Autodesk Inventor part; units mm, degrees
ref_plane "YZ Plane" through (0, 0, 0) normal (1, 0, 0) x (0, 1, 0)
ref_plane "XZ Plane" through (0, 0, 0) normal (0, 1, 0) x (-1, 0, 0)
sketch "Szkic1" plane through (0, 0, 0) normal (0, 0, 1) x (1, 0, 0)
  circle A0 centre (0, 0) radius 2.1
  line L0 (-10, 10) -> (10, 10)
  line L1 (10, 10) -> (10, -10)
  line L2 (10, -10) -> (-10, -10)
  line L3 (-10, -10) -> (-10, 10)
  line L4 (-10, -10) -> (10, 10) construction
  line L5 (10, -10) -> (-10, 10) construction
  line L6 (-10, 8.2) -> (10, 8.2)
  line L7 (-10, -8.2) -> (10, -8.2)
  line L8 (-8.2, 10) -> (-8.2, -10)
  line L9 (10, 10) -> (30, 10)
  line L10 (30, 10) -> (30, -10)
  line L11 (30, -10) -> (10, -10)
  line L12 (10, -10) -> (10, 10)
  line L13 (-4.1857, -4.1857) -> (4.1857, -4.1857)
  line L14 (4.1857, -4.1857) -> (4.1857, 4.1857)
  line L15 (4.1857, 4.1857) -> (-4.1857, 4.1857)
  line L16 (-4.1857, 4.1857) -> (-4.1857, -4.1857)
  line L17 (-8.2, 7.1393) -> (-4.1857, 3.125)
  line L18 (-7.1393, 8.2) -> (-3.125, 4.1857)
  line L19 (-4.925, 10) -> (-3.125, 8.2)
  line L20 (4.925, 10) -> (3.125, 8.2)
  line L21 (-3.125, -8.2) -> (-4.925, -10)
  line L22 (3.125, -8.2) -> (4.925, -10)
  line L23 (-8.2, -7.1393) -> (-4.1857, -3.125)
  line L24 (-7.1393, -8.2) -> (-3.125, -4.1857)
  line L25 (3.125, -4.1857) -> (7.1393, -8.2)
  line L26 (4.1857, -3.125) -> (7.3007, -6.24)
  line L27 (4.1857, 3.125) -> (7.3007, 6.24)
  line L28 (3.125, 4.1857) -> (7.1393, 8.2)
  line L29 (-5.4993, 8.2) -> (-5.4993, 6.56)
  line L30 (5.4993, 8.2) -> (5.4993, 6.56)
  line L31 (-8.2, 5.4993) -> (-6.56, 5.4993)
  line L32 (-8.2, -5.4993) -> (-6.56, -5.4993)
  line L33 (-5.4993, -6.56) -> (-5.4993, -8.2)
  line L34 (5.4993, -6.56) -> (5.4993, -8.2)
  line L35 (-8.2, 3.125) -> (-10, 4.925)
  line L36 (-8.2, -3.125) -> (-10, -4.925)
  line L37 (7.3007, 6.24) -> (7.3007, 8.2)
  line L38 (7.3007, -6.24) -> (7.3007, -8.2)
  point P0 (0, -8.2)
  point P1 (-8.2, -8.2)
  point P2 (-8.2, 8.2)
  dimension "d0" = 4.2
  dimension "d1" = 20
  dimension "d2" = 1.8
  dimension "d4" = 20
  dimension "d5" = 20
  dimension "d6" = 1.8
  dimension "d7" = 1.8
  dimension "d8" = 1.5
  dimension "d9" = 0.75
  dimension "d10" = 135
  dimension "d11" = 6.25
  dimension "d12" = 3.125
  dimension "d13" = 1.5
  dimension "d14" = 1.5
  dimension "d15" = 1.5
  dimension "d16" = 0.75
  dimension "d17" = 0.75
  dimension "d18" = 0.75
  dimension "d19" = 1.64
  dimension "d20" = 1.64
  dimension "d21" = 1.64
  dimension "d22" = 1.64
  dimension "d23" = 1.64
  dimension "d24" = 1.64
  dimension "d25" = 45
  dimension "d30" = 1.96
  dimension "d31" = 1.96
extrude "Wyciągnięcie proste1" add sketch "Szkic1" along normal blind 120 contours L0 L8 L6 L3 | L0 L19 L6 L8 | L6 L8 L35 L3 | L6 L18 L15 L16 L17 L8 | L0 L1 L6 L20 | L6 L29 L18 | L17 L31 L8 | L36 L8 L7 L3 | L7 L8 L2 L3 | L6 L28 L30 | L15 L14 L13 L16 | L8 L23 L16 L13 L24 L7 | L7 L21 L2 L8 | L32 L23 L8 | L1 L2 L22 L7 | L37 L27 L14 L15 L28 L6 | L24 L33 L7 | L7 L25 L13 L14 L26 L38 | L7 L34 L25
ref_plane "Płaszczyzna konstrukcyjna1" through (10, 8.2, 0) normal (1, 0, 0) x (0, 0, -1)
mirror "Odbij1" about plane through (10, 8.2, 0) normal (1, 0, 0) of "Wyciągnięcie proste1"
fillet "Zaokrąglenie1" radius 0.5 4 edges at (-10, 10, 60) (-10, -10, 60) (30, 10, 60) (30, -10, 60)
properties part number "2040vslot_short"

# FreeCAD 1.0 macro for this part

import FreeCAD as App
import Part
import Sketcher

V = App.Vector
Q = App.Units.Quantity


def edges_at(feature, points):
    """Names of the edges that pass closest to the given points."""
    edges = feature.Shape.Edges
    near = lambda p: min(range(len(edges)), key=lambda i: edges[i].distToShape(Part.Vertex(*p))[0])
    return sorted({f"Edge{near(p) + 1}" for p in points})


def add_polygon(sketch, points):
    """Adds a closed chain of lines whose ends are joined by coincident constraints."""
    first, n = sketch.GeometryCount, len(points)
    for a, b in zip(points, points[1:] + points[:1]):
        sketch.addGeometry(Part.LineSegment(App.Vector(*a, 0), App.Vector(*b, 0)), False)
    for i in range(n):
        sketch.addConstraint(Sketcher.Constraint("Coincident", first + i, 2, first + (i + 1) % n, 1))

doc = App.newDocument("Part")
body = doc.addObject("PartDesign::Body", "Body")

# Sketch on XY plane
sketch1 = doc.addObject("Sketcher::SketchObject", "Sketch")
body.addObject(sketch1)
sketch1.AttachmentSupport = (doc.XY_Plane, [""])
sketch1.MapMode = "FlatFace"
add_polygon(sketch1, [(-10, 10), (-10, 4.925), (-8.2, 3.125), (-8.2, 5.4993), (-6.56, 5.4993), (-4.1857, 3.125), (-4.1857, -3.125), (-6.56, -5.4993), (-8.2, -5.4993), (-8.2, -3.125), (-10, -4.925), (-10, -10), (-4.925, -10), (-3.125, -8.2), (-5.4993, -8.2), (-5.4993, -6.56), (-3.125, -4.1857), (3.125, -4.1857), (5.4993, -6.56), (5.4993, -8.2), (3.125, -8.2), (4.925, -10), (10, -10), (10, -8.2), (7.3007, -8.2), (7.3007, -6.24), (4.1857, -3.125), (4.1857, 3.125), (7.3007, 6.24), (7.3007, 8.2), (10, 8.2), (10, 10), (4.925, 10), (3.125, 8.2), (5.4993, 8.2), (5.4993, 6.56), (3.125, 4.1857), (-3.125, 4.1857), (-5.4993, 6.56), (-5.4993, 8.2), (-3.125, 8.2), (-4.925, 10)])  # lines 0-41
sketch1.addGeometry(Part.Circle(V(0, 0, 0), V(0, 0, 1), 2.1), False)  # 42
sketch1.addConstraint([
    Sketcher.Constraint("Vertical", 0),
    Sketcher.Constraint("Vertical", 2),
    Sketcher.Constraint("Horizontal", 3),
    Sketcher.Constraint("Vertical", 5),
    Sketcher.Constraint("Horizontal", 7),
    Sketcher.Constraint("Vertical", 8),
    Sketcher.Constraint("Vertical", 10),
    Sketcher.Constraint("Horizontal", 11),
    Sketcher.Constraint("Horizontal", 13),
    Sketcher.Constraint("Vertical", 14),
    Sketcher.Constraint("Horizontal", 16),
    Sketcher.Constraint("Vertical", 18),
    Sketcher.Constraint("Horizontal", 19),
    Sketcher.Constraint("Horizontal", 21),
    Sketcher.Constraint("Vertical", 22),
    Sketcher.Constraint("Horizontal", 23),
    Sketcher.Constraint("Vertical", 24),
    Sketcher.Constraint("Vertical", 26),
    Sketcher.Constraint("Vertical", 28),
    Sketcher.Constraint("Horizontal", 29),
    Sketcher.Constraint("Vertical", 30),
    Sketcher.Constraint("Horizontal", 31),
    Sketcher.Constraint("Horizontal", 33),
    Sketcher.Constraint("Vertical", 34),
    Sketcher.Constraint("Horizontal", 36),
    Sketcher.Constraint("Vertical", 38),
    Sketcher.Constraint("Horizontal", 39),
    Sketcher.Constraint("Horizontal", 41),
    Sketcher.Constraint("Coincident", 42, 3, -1, 1),
    Sketcher.Constraint("Symmetric", 4, 2, 25, 2, -1, 1),
    Sketcher.Constraint("Symmetric", 10, 2, 30, 2, -1, 1),
    Sketcher.Constraint("Symmetric", 12, 2, 32, 2, -1, 1),
    Sketcher.Constraint("Symmetric", 14, 2, 34, 2, -1, 1),
    Sketcher.Constraint("Symmetric", 15, 2, 35, 2, -1, 1),
    Sketcher.Constraint("Symmetric", 17, 2, 37, 2, -1, 1),
    Sketcher.Constraint("Symmetric", 19, 2, 39, 2, -1, 1),
    Sketcher.Constraint("Symmetric", 20, 2, 40, 2, -1, 1),
    Sketcher.Constraint("Symmetric", 14, 2, 17, 2, -2),
    Sketcher.Constraint("Symmetric", 12, 2, 19, 2, -2),
    Sketcher.Constraint("Symmetric", 11, 2, 20, 2, -2),
    Sketcher.Constraint("Symmetric", 3, 2, 6, 2, -1),
    Sketcher.Constraint("Symmetric", 1, 2, 8, 2, -1),
    Sketcher.Constraint("Symmetric", 0, 2, 9, 2, -1),
    Sketcher.Constraint("Symmetric", 24, 2, 27, 2, -1),
    Sketcher.Constraint("Symmetric", 22, 2, 29, 2, -1),
    Sketcher.Constraint("Parallel", 1, 4),
    Sketcher.Constraint("Perpendicular", 4, 6),
    Sketcher.Constraint("Parallel", 6, 9),
    Sketcher.Constraint("Parallel", 9, 12),
    Sketcher.Constraint("Parallel", 12, 15),
    Sketcher.Constraint("Perpendicular", 15, 17),
    Sketcher.Constraint("Parallel", 20, 25),
    Sketcher.Constraint("Perpendicular", 25, 27),
    Sketcher.Constraint("Parallel", 27, 32),
    Sketcher.Constraint("Perpendicular", 35, 37),
    Sketcher.Constraint("Horizontal", 1, 2, 4, 2),
    Sketcher.Constraint("Horizontal", 19, 2, 22, 2),
    Sketcher.Constraint("Vertical", 12, 2, 15, 2),
    Sketcher.Constraint("Equal", 41, 0),
    Sketcher.Constraint("Equal", 39, 2),
    Sketcher.Constraint("Equal", 36, 5),
    Sketcher.Constraint("Equal", 7, 14),
    Sketcher.Constraint("Equal", 9, 12),
    Sketcher.Constraint("Diameter", 42, Q("4.2 mm")),
    Sketcher.Constraint("DistanceY", 22, 1, 22, 2, Q("1.8 mm")),
    Sketcher.Constraint("DistanceX", 3, 1, 3, 2, Q("1.64 mm")),
    Sketcher.Constraint("DistanceX", 16, 1, 16, 2, Q("6.25 mm")),
    Sketcher.Constraint("DistanceY", 24, 1, 24, 2, Q("1.96 mm")),
    Sketcher.Constraint("DistanceX", 0, 2, -1, 1, Q("10 mm")),
    Sketcher.Constraint("DistanceX", 13, 2, 13, 1, Q("2.3743 mm")),
])
pad1 = doc.addObject("PartDesign::Pad", "Pad")
body.addObject(pad1)
pad1.Profile = sketch1
pad1.Length = 120
doc.recompute()

datumplane = doc.addObject("PartDesign::Plane", "DatumPlane")
body.addObject(datumplane)
datumplane.AttachmentSupport = (doc.YZ_Plane, [""])
datumplane.MapMode = "FlatFace"
datumplane.AttachmentOffset = App.Placement(V(0, 0, 10), App.Rotation())
mirrored = doc.addObject("PartDesign::Mirrored", "Mirrored")
body.addObject(mirrored)
mirrored.Originals = [pad1]
mirrored.MirrorPlane = (datumplane, [""])
body.Tip = mirrored
doc.recompute()

fillet = doc.addObject("PartDesign::Fillet", "Fillet")
body.addObject(fillet)
fillet.Base = (mirrored, edges_at(mirrored, [
    (-10, 10, 60),
    (-10, -10, 60),
    (30, 10, 60),
    (30, -10, 60),
]))
fillet.Radius = 0.5

doc.recompute()
